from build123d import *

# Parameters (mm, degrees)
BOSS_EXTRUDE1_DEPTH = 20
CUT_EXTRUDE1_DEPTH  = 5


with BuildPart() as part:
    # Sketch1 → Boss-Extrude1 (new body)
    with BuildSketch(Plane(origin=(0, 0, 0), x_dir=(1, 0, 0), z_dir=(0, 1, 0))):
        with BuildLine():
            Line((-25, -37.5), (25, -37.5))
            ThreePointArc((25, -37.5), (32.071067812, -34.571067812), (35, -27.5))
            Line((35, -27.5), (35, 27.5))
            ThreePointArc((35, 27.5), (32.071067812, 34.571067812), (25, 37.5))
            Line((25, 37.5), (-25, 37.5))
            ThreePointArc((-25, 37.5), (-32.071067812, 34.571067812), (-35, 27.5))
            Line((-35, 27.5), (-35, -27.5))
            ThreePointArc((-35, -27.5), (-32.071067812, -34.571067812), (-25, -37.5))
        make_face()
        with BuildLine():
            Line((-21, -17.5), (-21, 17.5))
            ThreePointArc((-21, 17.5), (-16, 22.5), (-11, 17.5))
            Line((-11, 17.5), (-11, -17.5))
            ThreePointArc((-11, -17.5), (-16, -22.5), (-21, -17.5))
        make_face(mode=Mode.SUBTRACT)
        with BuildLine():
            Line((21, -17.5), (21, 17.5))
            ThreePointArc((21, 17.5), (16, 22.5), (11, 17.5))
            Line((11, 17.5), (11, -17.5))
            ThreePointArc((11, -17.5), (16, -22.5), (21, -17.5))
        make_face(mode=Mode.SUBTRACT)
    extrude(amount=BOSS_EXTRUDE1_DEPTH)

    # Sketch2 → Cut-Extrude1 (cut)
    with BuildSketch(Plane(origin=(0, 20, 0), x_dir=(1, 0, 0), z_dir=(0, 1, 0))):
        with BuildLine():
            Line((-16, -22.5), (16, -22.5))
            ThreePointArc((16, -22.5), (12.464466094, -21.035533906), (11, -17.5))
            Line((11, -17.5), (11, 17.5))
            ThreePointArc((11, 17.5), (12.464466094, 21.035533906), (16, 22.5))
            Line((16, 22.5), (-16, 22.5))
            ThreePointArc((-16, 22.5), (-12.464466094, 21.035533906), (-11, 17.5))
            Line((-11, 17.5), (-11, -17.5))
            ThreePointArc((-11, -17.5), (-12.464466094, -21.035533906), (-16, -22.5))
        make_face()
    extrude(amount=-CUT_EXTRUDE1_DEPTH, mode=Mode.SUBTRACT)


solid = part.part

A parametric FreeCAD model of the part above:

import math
import FreeCAD as App
import Part
import Sketcher
from FreeCAD import Vector

doc = App.newDocument("Part")
body = doc.addObject("PartDesign::Body", "Body")

sketch1 = body.newObject("Sketcher::SketchObject", "Sketch")
sketch1.AttachmentSupport = (doc.getObject("XZ_Plane"), [""])
sketch1.MapMode = "FlatFace"
sketch1.addGeometry([
    Part.LineSegment(Vector(-25, 38, 0), Vector(25, 38, 0)),
    Part.ArcOfCircle(Part.Circle(Vector(25, 28, 0), Vector(0, 0, 1), 10), math.radians(0), math.radians(90)),
    Part.LineSegment(Vector(35, 28, 0), Vector(35, -28, 0)),
    Part.ArcOfCircle(Part.Circle(Vector(25, -28, 0), Vector(0, 0, 1), 10), math.radians(-90), math.radians(0)),
    Part.LineSegment(Vector(25, -38, 0), Vector(-25, -38, 0)),
    Part.ArcOfCircle(Part.Circle(Vector(-25, -28, 0), Vector(0, 0, 1), 10), math.radians(180), math.radians(270)),
    Part.LineSegment(Vector(-35, -28, 0), Vector(-35, 28, 0)),
    Part.ArcOfCircle(Part.Circle(Vector(-25, 28, 0), Vector(0, 0, 1), 10), math.radians(90), math.radians(180)),
    Part.ArcOfCircle(Part.Circle(Vector(-16, 18, 0), Vector(0, 0, 1), 5), math.radians(0), math.radians(180)),
    Part.LineSegment(Vector(-21, 18, 0), Vector(-21, -18, 0)),
    Part.ArcOfCircle(Part.Circle(Vector(-16, -18, 0), Vector(0, 0, 1), 5), math.radians(180), math.radians(360)),
    Part.LineSegment(Vector(-11, -18, 0), Vector(-11, 18, 0)),
    Part.LineSegment(Vector(21, -18, 0), Vector(21, 18, 0)),
    Part.ArcOfCircle(Part.Circle(Vector(16, 18, 0), Vector(0, 0, 1), 5), math.radians(0), math.radians(180)),
    Part.LineSegment(Vector(11, 18, 0), Vector(11, -18, 0)),
    Part.ArcOfCircle(Part.Circle(Vector(16, -18, 0), Vector(0, 0, 1), 5), math.radians(180), math.radians(360)),
], False)
sketch1.addConstraint([
    Sketcher.Constraint("Tangent", 0, 2, 1, 2),
    Sketcher.Constraint("Tangent", 1, 1, 2, 1),
    Sketcher.Constraint("Tangent", 2, 2, 3, 2),
    Sketcher.Constraint("Tangent", 3, 1, 4, 1),
    Sketcher.Constraint("Tangent", 4, 2, 5, 2),
    Sketcher.Constraint("Tangent", 5, 1, 6, 1),
    Sketcher.Constraint("Tangent", 6, 2, 7, 2),
    Sketcher.Constraint("Tangent", 7, 1, 0, 1),
    Sketcher.Constraint("Tangent", 8, 2, 9, 1),
    Sketcher.Constraint("Tangent", 9, 2, 10, 1),
    Sketcher.Constraint("Tangent", 10, 2, 11, 1),
    Sketcher.Constraint("Tangent", 11, 2, 8, 1),
    Sketcher.Constraint("Tangent", 12, 2, 13, 1),
    Sketcher.Constraint("Tangent", 13, 2, 14, 1),
    Sketcher.Constraint("Tangent", 14, 2, 15, 1),
    Sketcher.Constraint("Tangent", 15, 2, 12, 1),
    Sketcher.Constraint("Horizontal", 0),
    Sketcher.Constraint("Vertical", 2),
    Sketcher.Constraint("Horizontal", 4),
    Sketcher.Constraint("Vertical", 6),
    Sketcher.Constraint("Vertical", 9),
    Sketcher.Constraint("Vertical", 11),
    Sketcher.Constraint("Vertical", 12),
    Sketcher.Constraint("Vertical", 14),
    Sketcher.Constraint("Equal", 1, 3),
    Sketcher.Constraint("Equal", 3, 5),
    Sketcher.Constraint("Equal", 5, 7),
    Sketcher.Constraint("Equal", 10, 13),
    Sketcher.Constraint("Symmetric", 1, 3, 5, 3, -1, 1),
    Sketcher.Constraint("Symmetric", 10, 3, 13, 3, -1, 1),
    Sketcher.Constraint("Horizontal", 8, 3, 13, 3),
    Sketcher.Constraint("Horizontal", 10, 3, 15, 3),
    Sketcher.Constraint("Radius", 1, 10.0),
    Sketcher.Constraint("Radius", 8, 5.0),
    Sketcher.Constraint("DistanceX", 0, 1, 0, 2, 50.0),
    Sketcher.Constraint("DistanceY", 2, 2, 2, 1, 55.0),
    Sketcher.Constraint("DistanceY", 9, 2, 9, 1, 35.0),
    Sketcher.Constraint("DistanceX", 8, 3, -1, 1, 16.0),
])
pad1 = body.newObject("PartDesign::Pad", "Pad")
pad1.Profile = sketch1
pad1.Length = 20
pad1.Reversed = True

sketch2 = body.newObject("Sketcher::SketchObject", "Sketch001")
sketch2.AttachmentSupport = (doc.getObject("XZ_Plane"), [""])
sketch2.MapMode = "FlatFace"
sketch2.AttachmentOffset = App.Placement(Vector(0, 0, -20), App.Rotation())
sketch2.addGeometry([
    Part.LineSegment(Vector(-16, 22, 0), Vector(16, 22, 0)),
    Part.ArcOfCircle(Part.Circle(Vector(16, 18, 0), Vector(0, 0, 1), 5), math.radians(90), math.radians(180)),
    Part.LineSegment(Vector(11, 18, 0), Vector(11, -18, 0)),
    Part.ArcOfCircle(Part.Circle(Vector(16, -18, 0), Vector(0, 0, 1), 5), math.radians(180), math.radians(270)),
    Part.LineSegment(Vector(16, -22, 0), Vector(-16, -22, 0)),
    Part.ArcOfCircle(Part.Circle(Vector(-16, -18, 0), Vector(0, 0, 1), 5), math.radians(-90), math.radians(0)),
    Part.LineSegment(Vector(-11, -18, 0), Vector(-11, 18, 0)),
    Part.ArcOfCircle(Part.Circle(Vector(-16, 18, 0), Vector(0, 0, 1), 5), math.radians(0), math.radians(90)),
], False)
sketch2.addConstraint([
    Sketcher.Constraint("Tangent", 0, 2, 1, 1),
    Sketcher.Constraint("Tangent", 1, 2, 2, 1),
    Sketcher.Constraint("Tangent", 2, 2, 3, 1),
    Sketcher.Constraint("Tangent", 3, 2, 4, 1),
    Sketcher.Constraint("Tangent", 4, 2, 5, 1),
    Sketcher.Constraint("Tangent", 5, 2, 6, 1),
    Sketcher.Constraint("Tangent", 6, 2, 7, 1),
    Sketcher.Constraint("Tangent", 7, 2, 0, 1),
    Sketcher.Constraint("Horizontal", 0),
    Sketcher.Constraint("Vertical", 2),
    Sketcher.Constraint("Horizontal", 4),
    Sketcher.Constraint("Vertical", 6),
    Sketcher.Constraint("Equal", 1, 3),
    Sketcher.Constraint("Equal", 3, 5),
    Sketcher.Constraint("Equal", 5, 7),
    Sketcher.Constraint("Symmetric", 1, 3, 5, 3, -1, 1),
    Sketcher.Constraint("Radius", 1, 5.0),
    Sketcher.Constraint("DistanceX", 0, 1, 0, 2, 32.0),
    Sketcher.Constraint("DistanceY", 2, 2, 2, 1, 35.0),
])
pocket1 = body.newObject("PartDesign::Pocket", "Pocket")
pocket1.Profile = sketch2
pocket1.Length = 5
pocket1.Reversed = True

doc.recompute()
